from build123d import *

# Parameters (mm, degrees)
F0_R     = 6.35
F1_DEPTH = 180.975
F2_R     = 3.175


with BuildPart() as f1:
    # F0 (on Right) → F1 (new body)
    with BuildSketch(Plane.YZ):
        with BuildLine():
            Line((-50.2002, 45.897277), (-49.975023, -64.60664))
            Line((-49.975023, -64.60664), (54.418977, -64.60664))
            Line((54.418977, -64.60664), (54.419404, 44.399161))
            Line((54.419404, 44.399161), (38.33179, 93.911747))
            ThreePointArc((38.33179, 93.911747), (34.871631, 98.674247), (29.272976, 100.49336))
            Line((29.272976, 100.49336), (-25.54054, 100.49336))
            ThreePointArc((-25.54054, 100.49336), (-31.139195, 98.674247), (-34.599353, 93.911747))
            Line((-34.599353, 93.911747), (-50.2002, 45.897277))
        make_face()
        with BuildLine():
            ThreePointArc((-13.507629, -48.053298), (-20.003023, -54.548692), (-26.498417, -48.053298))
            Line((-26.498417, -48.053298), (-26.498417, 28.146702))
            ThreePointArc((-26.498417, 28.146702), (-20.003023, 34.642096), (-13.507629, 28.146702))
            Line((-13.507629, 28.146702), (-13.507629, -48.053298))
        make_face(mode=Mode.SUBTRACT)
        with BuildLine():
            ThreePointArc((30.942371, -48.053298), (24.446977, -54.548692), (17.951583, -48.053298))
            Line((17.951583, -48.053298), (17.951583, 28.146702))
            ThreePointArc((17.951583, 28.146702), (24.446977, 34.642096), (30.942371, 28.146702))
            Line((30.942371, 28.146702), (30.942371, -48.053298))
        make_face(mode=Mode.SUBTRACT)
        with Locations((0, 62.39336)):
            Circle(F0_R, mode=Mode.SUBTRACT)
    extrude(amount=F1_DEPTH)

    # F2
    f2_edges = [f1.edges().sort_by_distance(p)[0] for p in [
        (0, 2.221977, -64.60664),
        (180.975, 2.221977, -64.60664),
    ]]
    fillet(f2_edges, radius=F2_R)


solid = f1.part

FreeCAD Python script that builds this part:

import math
import FreeCAD as App
import Part
import Sketcher
from FreeCAD import Vector
Q = App.Units.Quantity


def edges_at(feature, points):
    """Names of the edges that pass closest to the given points."""
    edges = feature.Shape.Edges
    near = lambda p: min(range(len(edges)), key=lambda i: edges[i].distToShape(Part.Vertex(*p))[0])
    return sorted({f"Edge{near(p) + 1}" for p in points})

doc = App.newDocument("Part")
body = doc.addObject("PartDesign::Body", "Body")

# Sketch on YZ plane
sketch1 = body.newObject("Sketcher::SketchObject", "Sketch")
sketch1.AttachmentSupport = (doc.getObject("YZ_Plane"), [""])
sketch1.MapMode = "FlatFace"
sketch1.addGeometry([
    Part.LineSegment(Vector(-50, 46, 0), Vector(-50, -65, 0)),  # 0
    Part.LineSegment(Vector(-50, -65, 0), Vector(54, -65, 0)),  # 1
    Part.LineSegment(Vector(54, -65, 0), Vector(54, 44, 0)),  # 2
    Part.LineSegment(Vector(54, 44, 0), Vector(38, 94, 0)),  # 3
    Part.ArcOfCircle(Part.Circle(Vector(29, 91, 0), Vector(0, 0, 1), 10), math.radians(18), math.radians(90)),  # 4
    Part.LineSegment(Vector(29, 100, 0), Vector(-26, 100, 0)),  # 5
    Part.ArcOfCircle(Part.Circle(Vector(-26, 91, 0), Vector(0, 0, 1), 10), math.radians(90), math.radians(162)),  # 6
    Part.LineSegment(Vector(-35, 94, 0), Vector(-50, 46, 0)),  # 7
    Part.LineSegment(Vector(-14, 28, 0), Vector(-14, -48, 0)),  # 8
    Part.ArcOfCircle(Part.Circle(Vector(-20, -48, 0), Vector(0, 0, 1), 6), math.radians(180), math.radians(360)),  # 9
    Part.LineSegment(Vector(-26, -48, 0), Vector(-26, 28, 0)),  # 10
    Part.ArcOfCircle(Part.Circle(Vector(-20, 28, 0), Vector(0, 0, 1), 6), math.radians(0), math.radians(180)),  # 11
    Part.LineSegment(Vector(31, 28, 0), Vector(31, -48, 0)),  # 12
    Part.ArcOfCircle(Part.Circle(Vector(24, -48, 0), Vector(0, 0, 1), 6), math.radians(180), math.radians(360)),  # 13
    Part.LineSegment(Vector(18, -48, 0), Vector(18, 28, 0)),  # 14
    Part.ArcOfCircle(Part.Circle(Vector(24, 28, 0), Vector(0, 0, 1), 6), math.radians(0), math.radians(180)),  # 15
    Part.Circle(Vector(0, 62, 0), Vector(0, 0, 1), 6),  # 16
], False)
sketch1.addConstraint([
    Sketcher.Constraint("Coincident", 0, 2, 1, 1),
    Sketcher.Constraint("Coincident", 1, 2, 2, 1),
    Sketcher.Constraint("Coincident", 2, 2, 3, 1),
    Sketcher.Constraint("Tangent", 3, 2, 4, 1),
    Sketcher.Constraint("Tangent", 4, 2, 5, 1),
    Sketcher.Constraint("Tangent", 5, 2, 6, 1),
    Sketcher.Constraint("Tangent", 6, 2, 7, 1),
    Sketcher.Constraint("Coincident", 7, 2, 0, 1),
    Sketcher.Constraint("Tangent", 8, 2, 9, 2),
    Sketcher.Constraint("Tangent", 9, 1, 10, 1),
    Sketcher.Constraint("Tangent", 10, 2, 11, 2),
    Sketcher.Constraint("Tangent", 11, 1, 8, 1),
    Sketcher.Constraint("Tangent", 12, 2, 13, 2),
    Sketcher.Constraint("Tangent", 13, 1, 14, 1),
    Sketcher.Constraint("Tangent", 14, 2, 15, 2),
    Sketcher.Constraint("Tangent", 15, 1, 12, 1),
    Sketcher.Constraint("Horizontal", 1),
    Sketcher.Constraint("Horizontal", 5),
    Sketcher.Constraint("Vertical", 8),
    Sketcher.Constraint("Vertical", 10),
    Sketcher.Constraint("Vertical", 12),
    Sketcher.Constraint("Vertical", 14),
    Sketcher.Constraint("Equal", 11, 13),
    Sketcher.Constraint("PointOnObject", 16, 3, -2),
    Sketcher.Constraint("Horizontal", 9, 3, 13, 3),
    Sketcher.Constraint("Horizontal", 11, 3, 15, 3),
    Sketcher.Constraint("Horizontal", 3, 2, 6, 2),
    Sketcher.Constraint("Diameter", 16, Q("0.5 in")),
    Sketcher.Constraint("DistanceY", 8, 2, 8, 1, Q("3 in")),
    Sketcher.Constraint("Angle", 3, Q("108 deg")),
    Sketcher.Constraint("Angle", 7, Q("-108 deg")),
    Sketcher.Constraint("Radius", 4, Q("0.375 in")),
    Sketcher.Constraint("DistanceY", 0, 2, 16, 3, Q("5 in")),
    Sketcher.Constraint("DistanceX", 1, 1, 1, 2, Q("4.11 in")),
    Sketcher.Constraint("DistanceY", 16, 3, 4, 2, Q("1.5 in")),
    Sketcher.Constraint("DistanceX", 9, 3, 4, 3, Q("1.94 in")),
    Sketcher.Constraint("DistanceX", 9, 3, 13, 3, Q("1.75 in")),
    Sketcher.Constraint("DistanceX", 0, 2, 9, 3, Q("1.18 in")),
    Sketcher.Constraint("Radius", 9, 6.495394),
    Sketcher.Constraint("Distance", 2, 109.005801),
    Sketcher.Constraint("Distance", 7, 50.485401),
    Sketcher.Constraint("DistanceX", 7, 2, -1, 1, 50.2002),
    Sketcher.Constraint("DistanceX", 5, 2, 5, 1, 54.813516),
    Sketcher.Constraint("DistanceY", -1, 1, 4, 3, 90.96836),
    Sketcher.Constraint("DistanceY", 9, 3, 6, 3, 139.02166),
])
pad1 = body.newObject("PartDesign::Pad", "Pad")
pad1.Profile = sketch1
pad1.Length = Q("7.125 in")
doc.recompute()

fillet = body.newObject("PartDesign::Fillet", "Fillet")
fillet.Base = (pad1, edges_at(pad1, [(0, 2.222, -64.607), (180.975, 2.222, -64.607)]))
fillet.Radius = Q("0.125 in")

doc.recompute()
